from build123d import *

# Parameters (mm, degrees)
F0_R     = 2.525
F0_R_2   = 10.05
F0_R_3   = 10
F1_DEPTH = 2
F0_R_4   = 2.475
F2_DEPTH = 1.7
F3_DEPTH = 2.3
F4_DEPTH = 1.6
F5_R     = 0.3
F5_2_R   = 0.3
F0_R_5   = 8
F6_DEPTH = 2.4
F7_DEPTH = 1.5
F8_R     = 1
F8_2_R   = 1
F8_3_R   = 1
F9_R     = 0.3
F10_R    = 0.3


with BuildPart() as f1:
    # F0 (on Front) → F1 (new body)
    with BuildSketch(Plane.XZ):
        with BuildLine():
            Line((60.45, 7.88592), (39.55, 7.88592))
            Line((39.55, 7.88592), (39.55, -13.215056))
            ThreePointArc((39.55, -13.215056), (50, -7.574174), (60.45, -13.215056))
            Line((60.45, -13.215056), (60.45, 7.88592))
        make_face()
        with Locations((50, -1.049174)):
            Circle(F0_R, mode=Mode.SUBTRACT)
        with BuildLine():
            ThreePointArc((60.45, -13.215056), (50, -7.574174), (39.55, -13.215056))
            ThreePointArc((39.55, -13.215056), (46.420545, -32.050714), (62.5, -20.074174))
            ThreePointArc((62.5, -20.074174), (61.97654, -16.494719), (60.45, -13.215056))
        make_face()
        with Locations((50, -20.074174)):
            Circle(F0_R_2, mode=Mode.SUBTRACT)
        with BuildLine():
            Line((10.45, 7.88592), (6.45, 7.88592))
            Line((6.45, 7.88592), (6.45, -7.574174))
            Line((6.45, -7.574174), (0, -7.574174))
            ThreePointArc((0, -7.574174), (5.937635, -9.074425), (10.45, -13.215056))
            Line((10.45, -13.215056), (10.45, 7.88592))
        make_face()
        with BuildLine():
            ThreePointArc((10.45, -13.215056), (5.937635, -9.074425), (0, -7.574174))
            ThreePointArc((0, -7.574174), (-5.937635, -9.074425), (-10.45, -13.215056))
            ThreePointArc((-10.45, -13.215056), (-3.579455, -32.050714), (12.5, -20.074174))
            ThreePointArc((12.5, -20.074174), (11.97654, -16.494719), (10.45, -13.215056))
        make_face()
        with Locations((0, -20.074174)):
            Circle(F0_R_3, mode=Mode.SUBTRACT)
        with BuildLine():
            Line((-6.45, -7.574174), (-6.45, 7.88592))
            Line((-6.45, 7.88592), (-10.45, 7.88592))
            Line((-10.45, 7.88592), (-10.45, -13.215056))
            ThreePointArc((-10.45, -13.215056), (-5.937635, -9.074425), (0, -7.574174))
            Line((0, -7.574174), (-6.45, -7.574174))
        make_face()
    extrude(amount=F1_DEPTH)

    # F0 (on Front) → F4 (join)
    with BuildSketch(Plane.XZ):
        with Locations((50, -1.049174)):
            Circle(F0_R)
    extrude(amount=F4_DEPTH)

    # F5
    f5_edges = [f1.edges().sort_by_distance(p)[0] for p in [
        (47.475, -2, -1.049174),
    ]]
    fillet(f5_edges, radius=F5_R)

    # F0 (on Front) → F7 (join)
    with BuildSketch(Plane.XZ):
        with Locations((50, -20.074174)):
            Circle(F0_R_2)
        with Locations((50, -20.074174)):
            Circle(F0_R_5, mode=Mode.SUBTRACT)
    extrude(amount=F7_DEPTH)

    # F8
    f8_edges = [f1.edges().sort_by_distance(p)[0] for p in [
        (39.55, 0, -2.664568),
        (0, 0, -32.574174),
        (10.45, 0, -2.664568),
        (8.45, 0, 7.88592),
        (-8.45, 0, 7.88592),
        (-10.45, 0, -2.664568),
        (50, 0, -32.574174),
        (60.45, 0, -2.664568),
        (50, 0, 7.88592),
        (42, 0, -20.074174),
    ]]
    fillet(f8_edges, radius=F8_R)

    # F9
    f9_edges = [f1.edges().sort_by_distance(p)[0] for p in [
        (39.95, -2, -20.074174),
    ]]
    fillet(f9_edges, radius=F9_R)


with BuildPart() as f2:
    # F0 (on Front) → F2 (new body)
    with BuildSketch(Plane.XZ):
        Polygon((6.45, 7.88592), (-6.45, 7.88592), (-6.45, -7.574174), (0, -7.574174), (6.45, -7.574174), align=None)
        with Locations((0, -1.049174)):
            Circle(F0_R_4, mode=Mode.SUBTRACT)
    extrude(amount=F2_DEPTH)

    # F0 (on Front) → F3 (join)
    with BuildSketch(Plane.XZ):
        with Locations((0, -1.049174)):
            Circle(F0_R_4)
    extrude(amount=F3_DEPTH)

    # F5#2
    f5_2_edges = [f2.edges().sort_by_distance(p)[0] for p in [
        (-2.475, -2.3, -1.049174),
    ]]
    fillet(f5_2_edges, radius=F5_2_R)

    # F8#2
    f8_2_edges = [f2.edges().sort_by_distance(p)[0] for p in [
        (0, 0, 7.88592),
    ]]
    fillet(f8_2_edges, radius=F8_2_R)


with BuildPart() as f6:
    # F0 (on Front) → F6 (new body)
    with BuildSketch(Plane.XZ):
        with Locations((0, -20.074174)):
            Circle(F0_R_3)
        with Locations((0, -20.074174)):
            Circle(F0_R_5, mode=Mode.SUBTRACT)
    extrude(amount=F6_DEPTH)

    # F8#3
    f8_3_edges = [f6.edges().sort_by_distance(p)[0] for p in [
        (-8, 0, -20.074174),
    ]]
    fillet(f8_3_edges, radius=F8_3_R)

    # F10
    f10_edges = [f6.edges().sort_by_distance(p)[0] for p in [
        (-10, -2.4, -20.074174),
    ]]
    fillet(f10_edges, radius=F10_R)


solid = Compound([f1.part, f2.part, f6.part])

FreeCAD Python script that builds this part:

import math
import FreeCAD as App
import Part
import Sketcher

V = App.Vector
Q = App.Units.Quantity


def edges_at(feature, points):
    """Names of the edges that pass closest to the given points."""
    edges = feature.Shape.Edges
    near = lambda p: min(range(len(edges)), key=lambda i: edges[i].distToShape(Part.Vertex(*p))[0])
    return sorted({f"Edge{near(p) + 1}" for p in points})


def add_polygon(sketch, points):
    """Adds a closed chain of lines whose ends are joined by coincident constraints."""
    first, n = sketch.GeometryCount, len(points)
    for a, b in zip(points, points[1:] + points[:1]):
        sketch.addGeometry(Part.LineSegment(App.Vector(*a, 0), App.Vector(*b, 0)), False)
    for i in range(n):
        sketch.addConstraint(Sketcher.Constraint("Coincident", first + i, 2, first + (i + 1) % n, 1))

doc = App.newDocument("Part")
body = doc.addObject("PartDesign::Body", "Body")
body.AllowCompound = True

sketch1 = body.newObject("Sketcher::SketchObject", "Sketch")
sketch1.AttachmentSupport = (doc.getObject("XZ_Plane"), [""])
sketch1.MapMode = "FlatFace"
sketch1.addGeometry(Part.LineSegment(V(60.5, 7.9, 0), V(39.5, 7.9, 0)), False)
sketch1.addGeometry(Part.LineSegment(V(39.5, 7.9, 0), V(39.5, -13.2, 0)), False)
sketch1.addGeometry(Part.ArcOfCircle(Part.Circle(V(50, -20.1, 0), V(0, 0, 1), 12.5), math.radians(147), math.radians(360)), False)
sketch1.addGeometry(Part.ArcOfCircle(Part.Circle(V(50, -20.1, 0), V(0, 0, 1), 12.5), math.radians(0), math.radians(33)), False)
sketch1.addGeometry(Part.LineSegment(V(60.5, -13.2, 0), V(60.5, 7.9, 0)), False)
sketch1.addGeometry(Part.Circle(V(50, -20.1, 0), V(0, 0, 1), 10.1), False)
sketch1.addGeometry(Part.Circle(V(50, -1, 0), V(0, 0, 1), 2.5), False)
sketch1.addGeometry(Part.LineSegment(V(10.4, 7.9, 0), V(6.5, 7.9, 0)), False)
sketch1.addGeometry(Part.LineSegment(V(6.5, 7.9, 0), V(6.5, -7.6, 0)), False)
sketch1.addGeometry(Part.LineSegment(V(6.5, -7.6, 0), V(-6.5, -7.6, 0)), False)
sketch1.addGeometry(Part.LineSegment(V(-6.5, -7.6, 0), V(-6.5, 7.9, 0)), False)
sketch1.addGeometry(Part.LineSegment(V(-6.5, 7.9, 0), V(-10.4, 7.9, 0)), False)
sketch1.addGeometry(Part.LineSegment(V(-10.4, 7.9, 0), V(-10.4, -13.2, 0)), False)
sketch1.addGeometry(Part.ArcOfCircle(Part.Circle(V(0, -20.1, 0), V(0, 0, 1), 12.5), math.radians(147), math.radians(360)), False)
sketch1.addGeometry(Part.ArcOfCircle(Part.Circle(V(0, -20.1, 0), V(0, 0, 1), 12.5), math.radians(0), math.radians(33)), False)
sketch1.addGeometry(Part.LineSegment(V(10.4, -13.2, 0), V(10.4, 7.9, 0)), False)
sketch1.addGeometry(Part.Circle(V(0, -20.1, 0), V(0, 0, 1), 10), False)
sketch1.addConstraint(Sketcher.Constraint("Coincident", 0, 2, 1, 1))
sketch1.addConstraint(Sketcher.Constraint("Coincident", 1, 2, 2, 1))
sketch1.addConstraint(Sketcher.Constraint("Tangent", 2, 2, 3, 1))
sketch1.addConstraint(Sketcher.Constraint("Coincident", 3, 2, 4, 1))
sketch1.addConstraint(Sketcher.Constraint("Coincident", 4, 2, 0, 1))
sketch1.addConstraint(Sketcher.Constraint("Coincident", 7, 2, 8, 1))
sketch1.addConstraint(Sketcher.Constraint("Coincident", 8, 2, 9, 1))
sketch1.addConstraint(Sketcher.Constraint("Coincident", 9, 2, 10, 1))
sketch1.addConstraint(Sketcher.Constraint("Coincident", 10, 2, 11, 1))
sketch1.addConstraint(Sketcher.Constraint("Coincident", 11, 2, 12, 1))
sketch1.addConstraint(Sketcher.Constraint("Coincident", 12, 2, 13, 1))
sketch1.addConstraint(Sketcher.Constraint("Tangent", 13, 2, 14, 1))
sketch1.addConstraint(Sketcher.Constraint("Coincident", 14, 2, 15, 1))
sketch1.addConstraint(Sketcher.Constraint("Coincident", 15, 2, 7, 1))
sketch1.addConstraint(Sketcher.Constraint("Horizontal", 0))
sketch1.addConstraint(Sketcher.Constraint("Vertical", 1))
sketch1.addConstraint(Sketcher.Constraint("Vertical", 4))
sketch1.addConstraint(Sketcher.Constraint("Horizontal", 7))
sketch1.addConstraint(Sketcher.Constraint("Vertical", 8))
sketch1.addConstraint(Sketcher.Constraint("Horizontal", 9))
sketch1.addConstraint(Sketcher.Constraint("Vertical", 10))
sketch1.addConstraint(Sketcher.Constraint("Horizontal", 11))
sketch1.addConstraint(Sketcher.Constraint("Vertical", 12))
sketch1.addConstraint(Sketcher.Constraint("Vertical", 15))
sketch1.addConstraint(Sketcher.Constraint("Coincident", 5, 3, 2, 3))
sketch1.addConstraint(Sketcher.Constraint("Coincident", 16, 3, 13, 3))
sketch1.addConstraint(Sketcher.Constraint("Equal", 2, 13))
sketch1.addConstraint(Sketcher.Constraint("Equal", 3, 14))
sketch1.addConstraint(Sketcher.Constraint("Symmetric", 7, 2, 10, 2, -2))
sketch1.addConstraint(Sketcher.Constraint("Symmetric", 12, 2, 14, 2, -2))
sketch1.addConstraint(Sketcher.Constraint("PointOnObject", 13, 3, -2))
sketch1.addConstraint(Sketcher.Constraint("Horizontal", 5, 3, 13, 3))
sketch1.addConstraint(Sketcher.Constraint("Horizontal", 16, 3, 2, 2))
sketch1.addConstraint(Sketcher.Constraint("Horizontal", 1, 2, 3, 2))
sketch1.addConstraint(Sketcher.Constraint("Horizontal", 4, 2, 7, 2))
sketch1.addConstraint(Sketcher.Constraint("Horizontal", 3, 2, 12, 2))
sketch1.addConstraint(Sketcher.Constraint("Horizontal", 2, 2, 13, 2))
sketch1.addConstraint(Sketcher.Constraint("Vertical", 5, 3, 6, 3))
sketch1.addConstraint(Sketcher.Constraint("Diameter", 16, Q("20 mm")))
sketch1.addConstraint(Sketcher.Constraint("Diameter", 5, Q("20.1 mm")))
sketch1.addConstraint(Sketcher.Constraint("Radius", 2, Q("12.5 mm")))
sketch1.addConstraint(Sketcher.Constraint("Diameter", 6, Q("5.05 mm")))
sketch1.addConstraint(Sketcher.Constraint("DistanceX", 7, 2, 7, 1, Q("4 mm")))
sketch1.addConstraint(Sketcher.Constraint("DistanceX", 0, 2, 0, 1, Q("20.9 mm")))
sketch1.addConstraint(Sketcher.Constraint("DistanceX", -1, 1, 2, 3, Q("50 mm")))
sketch1.addConstraint(Sketcher.Constraint("DistanceY", 16, 3, 8, 2, Q("12.5 mm")))
sketch1.addConstraint(Sketcher.Constraint("DistanceY", 5, 3, 6, 3, Q("19.025 mm")))
sketch1.addConstraint(Sketcher.Constraint("DistanceY", 1, 2, 1, 1, Q("21.100976 mm")))
sketch1.addConstraint(Sketcher.Constraint("DistanceY", 3, 3, -1, 1, Q("20.074172 mm")))
pad1 = body.newObject("PartDesign::Pad", "Pad")
pad1.Profile = sketch1
pad1.Length = 2

sketch2 = body.newObject("Sketcher::SketchObject", "Sketch001")
sketch2.AttachmentSupport = (doc.getObject("XZ_Plane"), [""])
sketch2.MapMode = "FlatFace"
sketch2.addGeometry(Part.Circle(V(50, -1, 0), V(0, 0, 1), 2.5), False)
sketch2.addConstraint(Sketcher.Constraint("Diameter", 0, Q("5.05 mm")))
sketch2.addConstraint(Sketcher.Constraint("DistanceX", -1, 1, 0, 3, Q("50 mm")))
sketch2.addConstraint(Sketcher.Constraint("DistanceY", 0, 3, -1, 1, Q("1.049174 mm")))
pad2 = body.newObject("PartDesign::Pad", "Pad001")
pad2.Profile = sketch2
pad2.Length = 1.6
doc.recompute()

fillet = body.newObject("PartDesign::Fillet", "Fillet")
fillet.Base = (pad2, edges_at(pad2, [(47.475, -2, -1.049)]))
fillet.Radius = 0.3

sketch3 = body.newObject("Sketcher::SketchObject", "Sketch002")
sketch3.AttachmentSupport = (doc.getObject("XZ_Plane"), [""])
sketch3.MapMode = "FlatFace"
sketch3.addGeometry(Part.Circle(V(50, -20, 0), V(0, 0, 1), 10), False)
sketch3.addGeometry(Part.Circle(V(50, -20, 0), V(0, 0, 1), 8), False)
sketch3.addConstraint(Sketcher.Constraint("Coincident", 1, 3, 0, 3))
sketch3.addConstraint(Sketcher.Constraint("Diameter", 1, Q("16 mm")))
sketch3.addConstraint(Sketcher.Constraint("Diameter", 0, Q("20.1 mm")))
sketch3.addConstraint(Sketcher.Constraint("DistanceX", -1, 1, 0, 3, Q("50 mm")))
sketch3.addConstraint(Sketcher.Constraint("DistanceY", 0, 3, -1, 1, Q("20.074174 mm")))
pad3 = body.newObject("PartDesign::Pad", "Pad002")
pad3.Profile = sketch3
pad3.Length = 1.5
doc.recompute()

fillet2 = body.newObject("PartDesign::Fillet", "Fillet001")
fillet2.Base = (pad3, edges_at(pad3, [
    (39.55, 0, -2.665),
    (-3.579, 0, -32.051),
    (10.45, 0, -2.665),
    (8.45, 0, 7.886),
    (-8.45, 0, 7.886),
    (-10.45, 0, -2.665),
    (46.421, 0, -32.051),
    (60.45, 0, -2.665),
    (50, 0, 7.886),
    (42, 0, -20.074),
]))
fillet2.Radius = 1
doc.recompute()

fillet3 = body.newObject("PartDesign::Fillet", "Fillet002")
fillet3.Base = (fillet2, edges_at(fillet2, [(39.95, -2, -20.074)]))
fillet3.Radius = 0.3
body2 = doc.addObject("PartDesign::Body", "Body001")

sketch4 = body2.newObject("Sketcher::SketchObject", "Sketch003")
sketch4.AttachmentSupport = (doc.getObject("XZ_Plane001"), [""])
sketch4.MapMode = "FlatFace"
add_polygon(sketch4, [(6.5, 7.9), (-6.5, 7.9), (-6.5, -7.6), (6.5, -7.6)])
sketch4.addGeometry(Part.Circle(V(0, -1, 0), V(0, 0, 1), 2.5), False)
sketch4.addConstraint(Sketcher.Constraint("Horizontal", 0))
sketch4.addConstraint(Sketcher.Constraint("Vertical", 1))
sketch4.addConstraint(Sketcher.Constraint("Horizontal", 2))
sketch4.addConstraint(Sketcher.Constraint("Vertical", 3))
sketch4.addConstraint(Sketcher.Constraint("PointOnObject", 4, 3, -2))
sketch4.addConstraint(Sketcher.Constraint("Diameter", 4, Q("4.95 mm")))
sketch4.addConstraint(Sketcher.Constraint("DistanceX", 0, 2, 0, 1, Q("12.9 mm")))
sketch4.addConstraint(Sketcher.Constraint("DistanceX", 0, 2, -1, 1, Q("6.45 mm")))
sketch4.addConstraint(Sketcher.Constraint("DistanceY", 1, 2, 4, 3, Q("6.525 mm")))
sketch4.addConstraint(Sketcher.Constraint("DistanceY", 1, 2, 1, 1, Q("15.460094 mm")))
sketch4.addConstraint(Sketcher.Constraint("DistanceY", -1, 1, 0, 2, Q("7.88592 mm")))
pad4 = body2.newObject("PartDesign::Pad", "Pad003")
pad4.Profile = sketch4
pad4.Length = 1.7

sketch5 = body2.newObject("Sketcher::SketchObject", "Sketch004")
sketch5.AttachmentSupport = (doc.getObject("XZ_Plane001"), [""])
sketch5.MapMode = "FlatFace"
sketch5.addGeometry(Part.Circle(V(0, -1, 0), V(0, 0, 1), 2.5), False)
sketch5.addConstraint(Sketcher.Constraint("PointOnObject", 0, 3, -2))
sketch5.addConstraint(Sketcher.Constraint("Diameter", 0, Q("4.95 mm")))
sketch5.addConstraint(Sketcher.Constraint("DistanceY", 0, 3, -1, 1, Q("1.049174 mm")))
pad5 = body2.newObject("PartDesign::Pad", "Pad004")
pad5.Profile = sketch5
pad5.Length = 2.3
doc.recompute()

fillet4 = body2.newObject("PartDesign::Fillet", "Fillet003")
fillet4.Base = (pad5, edges_at(pad5, [(-2.475, -2.3, -1.049)]))
fillet4.Radius = 0.3
doc.recompute()

fillet5 = body2.newObject("PartDesign::Fillet", "Fillet004")
fillet5.Base = (fillet4, edges_at(fillet4, [(0, 0, 7.886)]))
fillet5.Radius = 1
body3 = doc.addObject("PartDesign::Body", "Body002")

sketch6 = body3.newObject("Sketcher::SketchObject", "Sketch005")
sketch6.AttachmentSupport = (doc.getObject("XZ_Plane002"), [""])
sketch6.MapMode = "FlatFace"
sketch6.addGeometry(Part.Circle(V(0, -20, 0), V(0, 0, 1), 10), False)
sketch6.addGeometry(Part.Circle(V(0, -20, 0), V(0, 0, 1), 8), False)
sketch6.addConstraint(Sketcher.Constraint("Coincident", 1, 3, 0, 3))
sketch6.addConstraint(Sketcher.Constraint("PointOnObject", 0, 3, -2))
sketch6.addConstraint(Sketcher.Constraint("Diameter", 0, Q("20 mm")))
sketch6.addConstraint(Sketcher.Constraint("Diameter", 1, Q("16 mm")))
sketch6.addConstraint(Sketcher.Constraint("DistanceY", 0, 3, -1, 1, Q("20.074174 mm")))
pad6 = body3.newObject("PartDesign::Pad", "Pad005")
pad6.Profile = sketch6
pad6.Length = 2.4
doc.recompute()

fillet6 = body3.newObject("PartDesign::Fillet", "Fillet005")
fillet6.Base = (pad6, edges_at(pad6, [(-8, 0, -20.074)]))
fillet6.Radius = 1
doc.recompute()

fillet7 = body3.newObject("PartDesign::Fillet", "Fillet006")
fillet7.Base = (fillet6, edges_at(fillet6, [(-10, -2.4, -20.074)]))
fillet7.Radius = 0.3

doc.recompute()
